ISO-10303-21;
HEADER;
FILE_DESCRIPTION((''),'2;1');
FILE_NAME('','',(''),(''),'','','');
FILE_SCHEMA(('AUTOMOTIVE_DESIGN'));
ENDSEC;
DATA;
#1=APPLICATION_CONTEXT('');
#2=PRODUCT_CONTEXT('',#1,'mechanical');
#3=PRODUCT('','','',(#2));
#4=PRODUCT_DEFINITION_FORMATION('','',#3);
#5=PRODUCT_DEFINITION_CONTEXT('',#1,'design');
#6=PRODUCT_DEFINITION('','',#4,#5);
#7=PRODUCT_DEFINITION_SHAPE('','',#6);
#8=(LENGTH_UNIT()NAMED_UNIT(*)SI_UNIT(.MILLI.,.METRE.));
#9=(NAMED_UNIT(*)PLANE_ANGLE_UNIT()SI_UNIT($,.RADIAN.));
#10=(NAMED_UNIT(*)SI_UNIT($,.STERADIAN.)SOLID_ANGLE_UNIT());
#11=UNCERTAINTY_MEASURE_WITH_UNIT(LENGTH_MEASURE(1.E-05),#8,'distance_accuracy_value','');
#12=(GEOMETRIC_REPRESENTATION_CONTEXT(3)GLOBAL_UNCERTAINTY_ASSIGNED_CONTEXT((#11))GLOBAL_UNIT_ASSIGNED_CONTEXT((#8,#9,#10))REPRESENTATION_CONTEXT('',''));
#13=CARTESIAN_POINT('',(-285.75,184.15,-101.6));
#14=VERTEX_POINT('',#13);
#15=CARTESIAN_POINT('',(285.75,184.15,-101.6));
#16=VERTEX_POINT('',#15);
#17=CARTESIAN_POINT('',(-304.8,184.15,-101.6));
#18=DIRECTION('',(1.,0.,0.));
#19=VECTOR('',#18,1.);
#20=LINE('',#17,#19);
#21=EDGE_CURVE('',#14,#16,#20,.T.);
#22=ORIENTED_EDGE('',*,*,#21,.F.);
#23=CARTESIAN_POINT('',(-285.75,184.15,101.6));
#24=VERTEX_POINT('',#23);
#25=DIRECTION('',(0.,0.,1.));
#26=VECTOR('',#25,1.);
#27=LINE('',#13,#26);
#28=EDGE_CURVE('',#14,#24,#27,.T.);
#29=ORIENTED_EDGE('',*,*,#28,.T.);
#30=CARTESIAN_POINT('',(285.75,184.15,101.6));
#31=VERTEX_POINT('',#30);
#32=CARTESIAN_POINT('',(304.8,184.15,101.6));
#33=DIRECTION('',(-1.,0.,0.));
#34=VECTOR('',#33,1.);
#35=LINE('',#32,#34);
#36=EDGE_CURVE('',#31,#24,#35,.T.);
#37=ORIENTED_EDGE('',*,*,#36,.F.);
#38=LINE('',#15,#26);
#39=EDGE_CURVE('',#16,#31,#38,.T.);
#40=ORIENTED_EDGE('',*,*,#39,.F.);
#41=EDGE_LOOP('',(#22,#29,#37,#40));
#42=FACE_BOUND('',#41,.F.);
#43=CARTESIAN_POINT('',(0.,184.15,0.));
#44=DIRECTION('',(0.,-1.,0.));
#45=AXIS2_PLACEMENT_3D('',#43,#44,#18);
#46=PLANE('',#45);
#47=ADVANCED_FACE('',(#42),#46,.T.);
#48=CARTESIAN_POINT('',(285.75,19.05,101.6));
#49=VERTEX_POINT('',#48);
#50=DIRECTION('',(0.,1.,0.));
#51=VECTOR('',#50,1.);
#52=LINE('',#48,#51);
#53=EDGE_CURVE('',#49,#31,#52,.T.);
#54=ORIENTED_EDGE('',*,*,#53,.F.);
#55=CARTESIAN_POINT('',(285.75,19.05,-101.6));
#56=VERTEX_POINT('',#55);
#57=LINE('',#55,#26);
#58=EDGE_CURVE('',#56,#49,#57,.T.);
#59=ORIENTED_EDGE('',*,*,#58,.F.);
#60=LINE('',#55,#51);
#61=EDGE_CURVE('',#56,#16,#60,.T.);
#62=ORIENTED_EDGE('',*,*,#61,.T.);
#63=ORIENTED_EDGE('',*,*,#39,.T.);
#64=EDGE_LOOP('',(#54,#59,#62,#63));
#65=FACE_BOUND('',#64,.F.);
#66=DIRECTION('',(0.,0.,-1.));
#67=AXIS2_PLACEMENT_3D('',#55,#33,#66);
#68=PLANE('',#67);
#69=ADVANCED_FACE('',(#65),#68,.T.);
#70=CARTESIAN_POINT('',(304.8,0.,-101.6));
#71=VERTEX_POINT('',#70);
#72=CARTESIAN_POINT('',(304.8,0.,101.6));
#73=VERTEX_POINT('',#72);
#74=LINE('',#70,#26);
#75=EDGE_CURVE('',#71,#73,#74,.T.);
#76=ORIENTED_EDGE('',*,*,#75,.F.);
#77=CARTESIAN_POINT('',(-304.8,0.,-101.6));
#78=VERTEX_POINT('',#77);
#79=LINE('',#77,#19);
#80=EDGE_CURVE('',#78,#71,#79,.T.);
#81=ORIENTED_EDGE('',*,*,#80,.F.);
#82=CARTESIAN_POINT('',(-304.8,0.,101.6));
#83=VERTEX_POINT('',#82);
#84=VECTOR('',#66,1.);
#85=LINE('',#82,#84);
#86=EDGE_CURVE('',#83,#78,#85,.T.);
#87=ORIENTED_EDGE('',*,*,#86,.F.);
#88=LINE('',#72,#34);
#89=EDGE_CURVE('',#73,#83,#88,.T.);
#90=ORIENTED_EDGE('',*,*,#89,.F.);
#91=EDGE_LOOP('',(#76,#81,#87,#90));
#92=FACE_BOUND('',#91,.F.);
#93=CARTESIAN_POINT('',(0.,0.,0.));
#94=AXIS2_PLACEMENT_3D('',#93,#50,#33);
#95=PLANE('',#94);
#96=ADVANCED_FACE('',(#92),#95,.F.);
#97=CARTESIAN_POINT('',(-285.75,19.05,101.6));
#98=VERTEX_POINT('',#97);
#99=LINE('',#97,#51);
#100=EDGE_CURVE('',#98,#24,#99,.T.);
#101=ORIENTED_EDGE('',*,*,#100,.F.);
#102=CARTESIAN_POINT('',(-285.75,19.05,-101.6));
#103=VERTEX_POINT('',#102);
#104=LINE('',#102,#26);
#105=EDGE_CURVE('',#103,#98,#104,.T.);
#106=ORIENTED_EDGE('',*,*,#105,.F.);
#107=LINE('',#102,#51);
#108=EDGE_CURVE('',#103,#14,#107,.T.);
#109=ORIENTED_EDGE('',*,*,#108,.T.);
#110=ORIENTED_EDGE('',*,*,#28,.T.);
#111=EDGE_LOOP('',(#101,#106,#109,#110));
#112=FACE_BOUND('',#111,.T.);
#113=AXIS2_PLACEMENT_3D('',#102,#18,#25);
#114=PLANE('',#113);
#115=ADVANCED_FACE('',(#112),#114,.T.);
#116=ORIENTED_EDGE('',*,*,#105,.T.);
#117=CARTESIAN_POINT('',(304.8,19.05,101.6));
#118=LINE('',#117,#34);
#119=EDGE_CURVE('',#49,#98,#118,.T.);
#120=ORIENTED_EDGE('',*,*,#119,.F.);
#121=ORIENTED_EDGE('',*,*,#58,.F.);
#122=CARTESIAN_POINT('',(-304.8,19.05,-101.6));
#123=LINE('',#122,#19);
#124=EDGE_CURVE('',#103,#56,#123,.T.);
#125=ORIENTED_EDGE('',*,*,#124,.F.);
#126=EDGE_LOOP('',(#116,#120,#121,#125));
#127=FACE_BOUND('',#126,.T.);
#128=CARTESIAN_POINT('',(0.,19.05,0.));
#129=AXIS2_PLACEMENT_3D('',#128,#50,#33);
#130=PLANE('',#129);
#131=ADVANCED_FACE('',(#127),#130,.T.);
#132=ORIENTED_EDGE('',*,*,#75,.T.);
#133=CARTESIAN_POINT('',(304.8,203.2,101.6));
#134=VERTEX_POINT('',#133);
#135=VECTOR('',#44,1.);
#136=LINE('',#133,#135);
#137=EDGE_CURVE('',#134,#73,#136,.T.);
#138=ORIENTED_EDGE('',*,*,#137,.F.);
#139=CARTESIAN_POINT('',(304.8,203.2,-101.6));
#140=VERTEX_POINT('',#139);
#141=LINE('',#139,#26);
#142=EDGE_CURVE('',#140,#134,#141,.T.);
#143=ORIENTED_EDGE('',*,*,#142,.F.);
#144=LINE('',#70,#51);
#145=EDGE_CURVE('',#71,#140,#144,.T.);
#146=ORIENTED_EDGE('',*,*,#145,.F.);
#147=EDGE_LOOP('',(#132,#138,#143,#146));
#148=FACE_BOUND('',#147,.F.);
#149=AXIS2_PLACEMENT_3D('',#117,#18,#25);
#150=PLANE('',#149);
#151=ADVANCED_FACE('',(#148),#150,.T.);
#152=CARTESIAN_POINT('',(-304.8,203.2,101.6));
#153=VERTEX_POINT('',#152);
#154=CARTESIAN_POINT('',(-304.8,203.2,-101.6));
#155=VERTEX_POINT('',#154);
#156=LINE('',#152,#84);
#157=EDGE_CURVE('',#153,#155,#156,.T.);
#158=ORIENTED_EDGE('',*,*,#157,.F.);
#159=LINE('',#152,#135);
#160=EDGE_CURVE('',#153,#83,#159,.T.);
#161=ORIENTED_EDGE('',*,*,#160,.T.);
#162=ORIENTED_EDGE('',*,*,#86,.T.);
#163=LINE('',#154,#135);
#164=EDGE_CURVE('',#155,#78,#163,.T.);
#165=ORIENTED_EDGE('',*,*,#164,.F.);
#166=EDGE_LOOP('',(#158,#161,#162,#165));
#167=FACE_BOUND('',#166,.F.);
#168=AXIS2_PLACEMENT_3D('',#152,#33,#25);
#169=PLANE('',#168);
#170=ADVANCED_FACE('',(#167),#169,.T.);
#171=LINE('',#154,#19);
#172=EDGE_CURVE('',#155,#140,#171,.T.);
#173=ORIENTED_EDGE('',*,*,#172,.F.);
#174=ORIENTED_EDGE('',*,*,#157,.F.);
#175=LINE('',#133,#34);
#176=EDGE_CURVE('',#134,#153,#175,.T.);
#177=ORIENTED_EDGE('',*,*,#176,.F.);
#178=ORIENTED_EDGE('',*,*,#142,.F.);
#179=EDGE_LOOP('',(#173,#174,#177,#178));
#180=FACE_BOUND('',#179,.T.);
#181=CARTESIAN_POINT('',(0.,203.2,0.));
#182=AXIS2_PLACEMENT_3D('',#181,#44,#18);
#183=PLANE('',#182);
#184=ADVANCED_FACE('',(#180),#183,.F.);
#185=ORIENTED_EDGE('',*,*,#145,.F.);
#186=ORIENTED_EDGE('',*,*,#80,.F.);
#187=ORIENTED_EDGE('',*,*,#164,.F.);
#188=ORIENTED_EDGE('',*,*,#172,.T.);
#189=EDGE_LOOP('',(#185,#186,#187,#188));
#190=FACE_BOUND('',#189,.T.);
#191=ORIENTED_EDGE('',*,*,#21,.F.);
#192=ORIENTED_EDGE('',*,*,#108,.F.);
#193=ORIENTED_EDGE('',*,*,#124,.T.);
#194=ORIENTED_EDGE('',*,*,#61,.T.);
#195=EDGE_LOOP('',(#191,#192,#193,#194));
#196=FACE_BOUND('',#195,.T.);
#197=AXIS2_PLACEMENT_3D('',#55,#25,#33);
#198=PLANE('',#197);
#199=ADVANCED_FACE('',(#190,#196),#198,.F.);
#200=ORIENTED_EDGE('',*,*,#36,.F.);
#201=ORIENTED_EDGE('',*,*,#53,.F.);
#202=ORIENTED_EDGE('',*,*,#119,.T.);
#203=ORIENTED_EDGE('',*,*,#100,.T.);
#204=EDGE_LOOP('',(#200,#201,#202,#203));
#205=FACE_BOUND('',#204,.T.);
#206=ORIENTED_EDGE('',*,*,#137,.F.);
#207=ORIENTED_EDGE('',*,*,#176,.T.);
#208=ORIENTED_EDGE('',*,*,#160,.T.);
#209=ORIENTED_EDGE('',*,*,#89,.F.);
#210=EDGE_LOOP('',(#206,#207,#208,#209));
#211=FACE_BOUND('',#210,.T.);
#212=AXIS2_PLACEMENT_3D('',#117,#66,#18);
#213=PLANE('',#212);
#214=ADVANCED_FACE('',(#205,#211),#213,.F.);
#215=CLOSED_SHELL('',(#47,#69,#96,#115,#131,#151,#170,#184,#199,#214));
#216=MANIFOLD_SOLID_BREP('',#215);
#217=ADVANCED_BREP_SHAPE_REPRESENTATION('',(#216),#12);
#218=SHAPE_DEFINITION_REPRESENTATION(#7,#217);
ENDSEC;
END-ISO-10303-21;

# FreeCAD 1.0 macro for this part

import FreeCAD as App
import Part
import Sketcher

V = App.Vector
Q = App.Units.Quantity


def add_polygon(sketch, points):
    """Adds a closed chain of lines whose ends are joined by coincident constraints."""
    first, n = sketch.GeometryCount, len(points)
    for a, b in zip(points, points[1:] + points[:1]):
        sketch.addGeometry(Part.LineSegment(App.Vector(*a, 0), App.Vector(*b, 0)), False)
    for i in range(n):
        sketch.addConstraint(Sketcher.Constraint("Coincident", first + i, 2, first + (i + 1) % n, 1))

doc = App.newDocument("Part")
params = doc.addObject("Spreadsheet::Sheet", "Params")
for row, (alias, value) in enumerate([
    ("sketch1_width", "24 in"),
    ("sketch1_height", "8 in"),
    ("pad1_length", "0.75 in"),
    ("sketch2_width", "0.75 in"),
    ("sketch2_height", "8 in"),
    ("pad2_length", "6.5 in"),
], start=1):
    params.set(f"A{row}", alias)
    params.set(f"B{row}", "=" + value)
    params.setAlias(f"B{row}", alias)

body = doc.addObject("PartDesign::Body", "Body")

# Sketch on XZ plane
sketch1 = doc.addObject("Sketcher::SketchObject", "Sketch")
body.addObject(sketch1)
sketch1.AttachmentSupport = (doc.XZ_Plane, [""])
sketch1.MapMode = "FlatFace"
add_polygon(sketch1, [(-304.8, 101.6), (304.8, 101.6), (304.8, -101.6), (-304.8, -101.6)])  # lines 0-3
sketch1.addConstraint([
    Sketcher.Constraint("Horizontal", 0),
    Sketcher.Constraint("Vertical", 1),
    Sketcher.Constraint("Horizontal", 2),
    Sketcher.Constraint("Vertical", 3),
    Sketcher.Constraint("Symmetric", 0, 2, 2, 2, -1, 1),
    Sketcher.Constraint("DistanceX", 0, 1, 0, 2, Q("24 in")),
    Sketcher.Constraint("DistanceY", 1, 2, 1, 1, Q("8 in")),
])
sketch1.setExpression("Constraints[9]", "Params.sketch1_width")
sketch1.setExpression("Constraints[10]", "Params.sketch1_height")
pad1 = doc.addObject("PartDesign::Pad", "Pad")
body.addObject(pad1)
pad1.Profile = sketch1
pad1.setExpression("Length", "Params.pad1_length")
pad1.Reversed = True

# Sketch on XZ plane
sketch2 = doc.addObject("Sketcher::SketchObject", "Sketch001")
body.addObject(sketch2)
sketch2.AttachmentSupport = (doc.XZ_Plane, [""])
sketch2.MapMode = "FlatFace"
sketch2.AttachmentOffset = App.Placement(V(0, 0, -0.75 * 25.4), App.Rotation())
add_polygon(sketch2, [(-304.8, -101.6), (-304.8, 101.6), (-285.75, 101.6), (-285.75, -101.6)])  # lines 0-3
sketch2.addConstraint([
    Sketcher.Constraint("Vertical", 0),
    Sketcher.Constraint("Horizontal", 1),
    Sketcher.Constraint("Vertical", 2),
    Sketcher.Constraint("Horizontal", 3),
    Sketcher.Constraint("DistanceX", 1, 1, 1, 2, Q("0.75 in")),
    Sketcher.Constraint("DistanceY", 0, 1, 0, 2, Q("8 in")),
    Sketcher.Constraint("DistanceX", 0, 2, -1, 1, Q("12 in")),
    Sketcher.Constraint("DistanceY", -1, 1, 0, 2, Q("4 in")),
])
sketch2.setExpression("Constraints[8]", "Params.sketch2_width")
sketch2.setExpression("Constraints[9]", "Params.sketch2_height")
pad2 = doc.addObject("PartDesign::Pad", "Pad001")
body.addObject(pad2)
pad2.Profile = sketch2
pad2.setExpression("Length", "Params.pad2_length")
pad2.Reversed = True
doc.recompute()

datumplane = doc.addObject("PartDesign::Plane", "DatumPlane")
body.addObject(datumplane)
datumplane.AttachmentSupport = (doc.XZ_Plane, [""])
datumplane.MapMode = "FlatFace"
datumplane.AttachmentOffset = App.Placement(V(0, 0, -4 * 25.4), App.Rotation())
mirrored = doc.addObject("PartDesign::Mirrored", "Mirrored")
body.addObject(mirrored)
mirrored.Originals = [pad1]
mirrored.MirrorPlane = (datumplane, [""])
body.Tip = mirrored
doc.recompute()

mirrored2 = doc.addObject("PartDesign::Mirrored", "Mirrored001")
body.addObject(mirrored2)
mirrored2.Originals = [pad2]
mirrored2.MirrorPlane = (doc.YZ_Plane, [""])
body.Tip = mirrored2

doc.recompute()
